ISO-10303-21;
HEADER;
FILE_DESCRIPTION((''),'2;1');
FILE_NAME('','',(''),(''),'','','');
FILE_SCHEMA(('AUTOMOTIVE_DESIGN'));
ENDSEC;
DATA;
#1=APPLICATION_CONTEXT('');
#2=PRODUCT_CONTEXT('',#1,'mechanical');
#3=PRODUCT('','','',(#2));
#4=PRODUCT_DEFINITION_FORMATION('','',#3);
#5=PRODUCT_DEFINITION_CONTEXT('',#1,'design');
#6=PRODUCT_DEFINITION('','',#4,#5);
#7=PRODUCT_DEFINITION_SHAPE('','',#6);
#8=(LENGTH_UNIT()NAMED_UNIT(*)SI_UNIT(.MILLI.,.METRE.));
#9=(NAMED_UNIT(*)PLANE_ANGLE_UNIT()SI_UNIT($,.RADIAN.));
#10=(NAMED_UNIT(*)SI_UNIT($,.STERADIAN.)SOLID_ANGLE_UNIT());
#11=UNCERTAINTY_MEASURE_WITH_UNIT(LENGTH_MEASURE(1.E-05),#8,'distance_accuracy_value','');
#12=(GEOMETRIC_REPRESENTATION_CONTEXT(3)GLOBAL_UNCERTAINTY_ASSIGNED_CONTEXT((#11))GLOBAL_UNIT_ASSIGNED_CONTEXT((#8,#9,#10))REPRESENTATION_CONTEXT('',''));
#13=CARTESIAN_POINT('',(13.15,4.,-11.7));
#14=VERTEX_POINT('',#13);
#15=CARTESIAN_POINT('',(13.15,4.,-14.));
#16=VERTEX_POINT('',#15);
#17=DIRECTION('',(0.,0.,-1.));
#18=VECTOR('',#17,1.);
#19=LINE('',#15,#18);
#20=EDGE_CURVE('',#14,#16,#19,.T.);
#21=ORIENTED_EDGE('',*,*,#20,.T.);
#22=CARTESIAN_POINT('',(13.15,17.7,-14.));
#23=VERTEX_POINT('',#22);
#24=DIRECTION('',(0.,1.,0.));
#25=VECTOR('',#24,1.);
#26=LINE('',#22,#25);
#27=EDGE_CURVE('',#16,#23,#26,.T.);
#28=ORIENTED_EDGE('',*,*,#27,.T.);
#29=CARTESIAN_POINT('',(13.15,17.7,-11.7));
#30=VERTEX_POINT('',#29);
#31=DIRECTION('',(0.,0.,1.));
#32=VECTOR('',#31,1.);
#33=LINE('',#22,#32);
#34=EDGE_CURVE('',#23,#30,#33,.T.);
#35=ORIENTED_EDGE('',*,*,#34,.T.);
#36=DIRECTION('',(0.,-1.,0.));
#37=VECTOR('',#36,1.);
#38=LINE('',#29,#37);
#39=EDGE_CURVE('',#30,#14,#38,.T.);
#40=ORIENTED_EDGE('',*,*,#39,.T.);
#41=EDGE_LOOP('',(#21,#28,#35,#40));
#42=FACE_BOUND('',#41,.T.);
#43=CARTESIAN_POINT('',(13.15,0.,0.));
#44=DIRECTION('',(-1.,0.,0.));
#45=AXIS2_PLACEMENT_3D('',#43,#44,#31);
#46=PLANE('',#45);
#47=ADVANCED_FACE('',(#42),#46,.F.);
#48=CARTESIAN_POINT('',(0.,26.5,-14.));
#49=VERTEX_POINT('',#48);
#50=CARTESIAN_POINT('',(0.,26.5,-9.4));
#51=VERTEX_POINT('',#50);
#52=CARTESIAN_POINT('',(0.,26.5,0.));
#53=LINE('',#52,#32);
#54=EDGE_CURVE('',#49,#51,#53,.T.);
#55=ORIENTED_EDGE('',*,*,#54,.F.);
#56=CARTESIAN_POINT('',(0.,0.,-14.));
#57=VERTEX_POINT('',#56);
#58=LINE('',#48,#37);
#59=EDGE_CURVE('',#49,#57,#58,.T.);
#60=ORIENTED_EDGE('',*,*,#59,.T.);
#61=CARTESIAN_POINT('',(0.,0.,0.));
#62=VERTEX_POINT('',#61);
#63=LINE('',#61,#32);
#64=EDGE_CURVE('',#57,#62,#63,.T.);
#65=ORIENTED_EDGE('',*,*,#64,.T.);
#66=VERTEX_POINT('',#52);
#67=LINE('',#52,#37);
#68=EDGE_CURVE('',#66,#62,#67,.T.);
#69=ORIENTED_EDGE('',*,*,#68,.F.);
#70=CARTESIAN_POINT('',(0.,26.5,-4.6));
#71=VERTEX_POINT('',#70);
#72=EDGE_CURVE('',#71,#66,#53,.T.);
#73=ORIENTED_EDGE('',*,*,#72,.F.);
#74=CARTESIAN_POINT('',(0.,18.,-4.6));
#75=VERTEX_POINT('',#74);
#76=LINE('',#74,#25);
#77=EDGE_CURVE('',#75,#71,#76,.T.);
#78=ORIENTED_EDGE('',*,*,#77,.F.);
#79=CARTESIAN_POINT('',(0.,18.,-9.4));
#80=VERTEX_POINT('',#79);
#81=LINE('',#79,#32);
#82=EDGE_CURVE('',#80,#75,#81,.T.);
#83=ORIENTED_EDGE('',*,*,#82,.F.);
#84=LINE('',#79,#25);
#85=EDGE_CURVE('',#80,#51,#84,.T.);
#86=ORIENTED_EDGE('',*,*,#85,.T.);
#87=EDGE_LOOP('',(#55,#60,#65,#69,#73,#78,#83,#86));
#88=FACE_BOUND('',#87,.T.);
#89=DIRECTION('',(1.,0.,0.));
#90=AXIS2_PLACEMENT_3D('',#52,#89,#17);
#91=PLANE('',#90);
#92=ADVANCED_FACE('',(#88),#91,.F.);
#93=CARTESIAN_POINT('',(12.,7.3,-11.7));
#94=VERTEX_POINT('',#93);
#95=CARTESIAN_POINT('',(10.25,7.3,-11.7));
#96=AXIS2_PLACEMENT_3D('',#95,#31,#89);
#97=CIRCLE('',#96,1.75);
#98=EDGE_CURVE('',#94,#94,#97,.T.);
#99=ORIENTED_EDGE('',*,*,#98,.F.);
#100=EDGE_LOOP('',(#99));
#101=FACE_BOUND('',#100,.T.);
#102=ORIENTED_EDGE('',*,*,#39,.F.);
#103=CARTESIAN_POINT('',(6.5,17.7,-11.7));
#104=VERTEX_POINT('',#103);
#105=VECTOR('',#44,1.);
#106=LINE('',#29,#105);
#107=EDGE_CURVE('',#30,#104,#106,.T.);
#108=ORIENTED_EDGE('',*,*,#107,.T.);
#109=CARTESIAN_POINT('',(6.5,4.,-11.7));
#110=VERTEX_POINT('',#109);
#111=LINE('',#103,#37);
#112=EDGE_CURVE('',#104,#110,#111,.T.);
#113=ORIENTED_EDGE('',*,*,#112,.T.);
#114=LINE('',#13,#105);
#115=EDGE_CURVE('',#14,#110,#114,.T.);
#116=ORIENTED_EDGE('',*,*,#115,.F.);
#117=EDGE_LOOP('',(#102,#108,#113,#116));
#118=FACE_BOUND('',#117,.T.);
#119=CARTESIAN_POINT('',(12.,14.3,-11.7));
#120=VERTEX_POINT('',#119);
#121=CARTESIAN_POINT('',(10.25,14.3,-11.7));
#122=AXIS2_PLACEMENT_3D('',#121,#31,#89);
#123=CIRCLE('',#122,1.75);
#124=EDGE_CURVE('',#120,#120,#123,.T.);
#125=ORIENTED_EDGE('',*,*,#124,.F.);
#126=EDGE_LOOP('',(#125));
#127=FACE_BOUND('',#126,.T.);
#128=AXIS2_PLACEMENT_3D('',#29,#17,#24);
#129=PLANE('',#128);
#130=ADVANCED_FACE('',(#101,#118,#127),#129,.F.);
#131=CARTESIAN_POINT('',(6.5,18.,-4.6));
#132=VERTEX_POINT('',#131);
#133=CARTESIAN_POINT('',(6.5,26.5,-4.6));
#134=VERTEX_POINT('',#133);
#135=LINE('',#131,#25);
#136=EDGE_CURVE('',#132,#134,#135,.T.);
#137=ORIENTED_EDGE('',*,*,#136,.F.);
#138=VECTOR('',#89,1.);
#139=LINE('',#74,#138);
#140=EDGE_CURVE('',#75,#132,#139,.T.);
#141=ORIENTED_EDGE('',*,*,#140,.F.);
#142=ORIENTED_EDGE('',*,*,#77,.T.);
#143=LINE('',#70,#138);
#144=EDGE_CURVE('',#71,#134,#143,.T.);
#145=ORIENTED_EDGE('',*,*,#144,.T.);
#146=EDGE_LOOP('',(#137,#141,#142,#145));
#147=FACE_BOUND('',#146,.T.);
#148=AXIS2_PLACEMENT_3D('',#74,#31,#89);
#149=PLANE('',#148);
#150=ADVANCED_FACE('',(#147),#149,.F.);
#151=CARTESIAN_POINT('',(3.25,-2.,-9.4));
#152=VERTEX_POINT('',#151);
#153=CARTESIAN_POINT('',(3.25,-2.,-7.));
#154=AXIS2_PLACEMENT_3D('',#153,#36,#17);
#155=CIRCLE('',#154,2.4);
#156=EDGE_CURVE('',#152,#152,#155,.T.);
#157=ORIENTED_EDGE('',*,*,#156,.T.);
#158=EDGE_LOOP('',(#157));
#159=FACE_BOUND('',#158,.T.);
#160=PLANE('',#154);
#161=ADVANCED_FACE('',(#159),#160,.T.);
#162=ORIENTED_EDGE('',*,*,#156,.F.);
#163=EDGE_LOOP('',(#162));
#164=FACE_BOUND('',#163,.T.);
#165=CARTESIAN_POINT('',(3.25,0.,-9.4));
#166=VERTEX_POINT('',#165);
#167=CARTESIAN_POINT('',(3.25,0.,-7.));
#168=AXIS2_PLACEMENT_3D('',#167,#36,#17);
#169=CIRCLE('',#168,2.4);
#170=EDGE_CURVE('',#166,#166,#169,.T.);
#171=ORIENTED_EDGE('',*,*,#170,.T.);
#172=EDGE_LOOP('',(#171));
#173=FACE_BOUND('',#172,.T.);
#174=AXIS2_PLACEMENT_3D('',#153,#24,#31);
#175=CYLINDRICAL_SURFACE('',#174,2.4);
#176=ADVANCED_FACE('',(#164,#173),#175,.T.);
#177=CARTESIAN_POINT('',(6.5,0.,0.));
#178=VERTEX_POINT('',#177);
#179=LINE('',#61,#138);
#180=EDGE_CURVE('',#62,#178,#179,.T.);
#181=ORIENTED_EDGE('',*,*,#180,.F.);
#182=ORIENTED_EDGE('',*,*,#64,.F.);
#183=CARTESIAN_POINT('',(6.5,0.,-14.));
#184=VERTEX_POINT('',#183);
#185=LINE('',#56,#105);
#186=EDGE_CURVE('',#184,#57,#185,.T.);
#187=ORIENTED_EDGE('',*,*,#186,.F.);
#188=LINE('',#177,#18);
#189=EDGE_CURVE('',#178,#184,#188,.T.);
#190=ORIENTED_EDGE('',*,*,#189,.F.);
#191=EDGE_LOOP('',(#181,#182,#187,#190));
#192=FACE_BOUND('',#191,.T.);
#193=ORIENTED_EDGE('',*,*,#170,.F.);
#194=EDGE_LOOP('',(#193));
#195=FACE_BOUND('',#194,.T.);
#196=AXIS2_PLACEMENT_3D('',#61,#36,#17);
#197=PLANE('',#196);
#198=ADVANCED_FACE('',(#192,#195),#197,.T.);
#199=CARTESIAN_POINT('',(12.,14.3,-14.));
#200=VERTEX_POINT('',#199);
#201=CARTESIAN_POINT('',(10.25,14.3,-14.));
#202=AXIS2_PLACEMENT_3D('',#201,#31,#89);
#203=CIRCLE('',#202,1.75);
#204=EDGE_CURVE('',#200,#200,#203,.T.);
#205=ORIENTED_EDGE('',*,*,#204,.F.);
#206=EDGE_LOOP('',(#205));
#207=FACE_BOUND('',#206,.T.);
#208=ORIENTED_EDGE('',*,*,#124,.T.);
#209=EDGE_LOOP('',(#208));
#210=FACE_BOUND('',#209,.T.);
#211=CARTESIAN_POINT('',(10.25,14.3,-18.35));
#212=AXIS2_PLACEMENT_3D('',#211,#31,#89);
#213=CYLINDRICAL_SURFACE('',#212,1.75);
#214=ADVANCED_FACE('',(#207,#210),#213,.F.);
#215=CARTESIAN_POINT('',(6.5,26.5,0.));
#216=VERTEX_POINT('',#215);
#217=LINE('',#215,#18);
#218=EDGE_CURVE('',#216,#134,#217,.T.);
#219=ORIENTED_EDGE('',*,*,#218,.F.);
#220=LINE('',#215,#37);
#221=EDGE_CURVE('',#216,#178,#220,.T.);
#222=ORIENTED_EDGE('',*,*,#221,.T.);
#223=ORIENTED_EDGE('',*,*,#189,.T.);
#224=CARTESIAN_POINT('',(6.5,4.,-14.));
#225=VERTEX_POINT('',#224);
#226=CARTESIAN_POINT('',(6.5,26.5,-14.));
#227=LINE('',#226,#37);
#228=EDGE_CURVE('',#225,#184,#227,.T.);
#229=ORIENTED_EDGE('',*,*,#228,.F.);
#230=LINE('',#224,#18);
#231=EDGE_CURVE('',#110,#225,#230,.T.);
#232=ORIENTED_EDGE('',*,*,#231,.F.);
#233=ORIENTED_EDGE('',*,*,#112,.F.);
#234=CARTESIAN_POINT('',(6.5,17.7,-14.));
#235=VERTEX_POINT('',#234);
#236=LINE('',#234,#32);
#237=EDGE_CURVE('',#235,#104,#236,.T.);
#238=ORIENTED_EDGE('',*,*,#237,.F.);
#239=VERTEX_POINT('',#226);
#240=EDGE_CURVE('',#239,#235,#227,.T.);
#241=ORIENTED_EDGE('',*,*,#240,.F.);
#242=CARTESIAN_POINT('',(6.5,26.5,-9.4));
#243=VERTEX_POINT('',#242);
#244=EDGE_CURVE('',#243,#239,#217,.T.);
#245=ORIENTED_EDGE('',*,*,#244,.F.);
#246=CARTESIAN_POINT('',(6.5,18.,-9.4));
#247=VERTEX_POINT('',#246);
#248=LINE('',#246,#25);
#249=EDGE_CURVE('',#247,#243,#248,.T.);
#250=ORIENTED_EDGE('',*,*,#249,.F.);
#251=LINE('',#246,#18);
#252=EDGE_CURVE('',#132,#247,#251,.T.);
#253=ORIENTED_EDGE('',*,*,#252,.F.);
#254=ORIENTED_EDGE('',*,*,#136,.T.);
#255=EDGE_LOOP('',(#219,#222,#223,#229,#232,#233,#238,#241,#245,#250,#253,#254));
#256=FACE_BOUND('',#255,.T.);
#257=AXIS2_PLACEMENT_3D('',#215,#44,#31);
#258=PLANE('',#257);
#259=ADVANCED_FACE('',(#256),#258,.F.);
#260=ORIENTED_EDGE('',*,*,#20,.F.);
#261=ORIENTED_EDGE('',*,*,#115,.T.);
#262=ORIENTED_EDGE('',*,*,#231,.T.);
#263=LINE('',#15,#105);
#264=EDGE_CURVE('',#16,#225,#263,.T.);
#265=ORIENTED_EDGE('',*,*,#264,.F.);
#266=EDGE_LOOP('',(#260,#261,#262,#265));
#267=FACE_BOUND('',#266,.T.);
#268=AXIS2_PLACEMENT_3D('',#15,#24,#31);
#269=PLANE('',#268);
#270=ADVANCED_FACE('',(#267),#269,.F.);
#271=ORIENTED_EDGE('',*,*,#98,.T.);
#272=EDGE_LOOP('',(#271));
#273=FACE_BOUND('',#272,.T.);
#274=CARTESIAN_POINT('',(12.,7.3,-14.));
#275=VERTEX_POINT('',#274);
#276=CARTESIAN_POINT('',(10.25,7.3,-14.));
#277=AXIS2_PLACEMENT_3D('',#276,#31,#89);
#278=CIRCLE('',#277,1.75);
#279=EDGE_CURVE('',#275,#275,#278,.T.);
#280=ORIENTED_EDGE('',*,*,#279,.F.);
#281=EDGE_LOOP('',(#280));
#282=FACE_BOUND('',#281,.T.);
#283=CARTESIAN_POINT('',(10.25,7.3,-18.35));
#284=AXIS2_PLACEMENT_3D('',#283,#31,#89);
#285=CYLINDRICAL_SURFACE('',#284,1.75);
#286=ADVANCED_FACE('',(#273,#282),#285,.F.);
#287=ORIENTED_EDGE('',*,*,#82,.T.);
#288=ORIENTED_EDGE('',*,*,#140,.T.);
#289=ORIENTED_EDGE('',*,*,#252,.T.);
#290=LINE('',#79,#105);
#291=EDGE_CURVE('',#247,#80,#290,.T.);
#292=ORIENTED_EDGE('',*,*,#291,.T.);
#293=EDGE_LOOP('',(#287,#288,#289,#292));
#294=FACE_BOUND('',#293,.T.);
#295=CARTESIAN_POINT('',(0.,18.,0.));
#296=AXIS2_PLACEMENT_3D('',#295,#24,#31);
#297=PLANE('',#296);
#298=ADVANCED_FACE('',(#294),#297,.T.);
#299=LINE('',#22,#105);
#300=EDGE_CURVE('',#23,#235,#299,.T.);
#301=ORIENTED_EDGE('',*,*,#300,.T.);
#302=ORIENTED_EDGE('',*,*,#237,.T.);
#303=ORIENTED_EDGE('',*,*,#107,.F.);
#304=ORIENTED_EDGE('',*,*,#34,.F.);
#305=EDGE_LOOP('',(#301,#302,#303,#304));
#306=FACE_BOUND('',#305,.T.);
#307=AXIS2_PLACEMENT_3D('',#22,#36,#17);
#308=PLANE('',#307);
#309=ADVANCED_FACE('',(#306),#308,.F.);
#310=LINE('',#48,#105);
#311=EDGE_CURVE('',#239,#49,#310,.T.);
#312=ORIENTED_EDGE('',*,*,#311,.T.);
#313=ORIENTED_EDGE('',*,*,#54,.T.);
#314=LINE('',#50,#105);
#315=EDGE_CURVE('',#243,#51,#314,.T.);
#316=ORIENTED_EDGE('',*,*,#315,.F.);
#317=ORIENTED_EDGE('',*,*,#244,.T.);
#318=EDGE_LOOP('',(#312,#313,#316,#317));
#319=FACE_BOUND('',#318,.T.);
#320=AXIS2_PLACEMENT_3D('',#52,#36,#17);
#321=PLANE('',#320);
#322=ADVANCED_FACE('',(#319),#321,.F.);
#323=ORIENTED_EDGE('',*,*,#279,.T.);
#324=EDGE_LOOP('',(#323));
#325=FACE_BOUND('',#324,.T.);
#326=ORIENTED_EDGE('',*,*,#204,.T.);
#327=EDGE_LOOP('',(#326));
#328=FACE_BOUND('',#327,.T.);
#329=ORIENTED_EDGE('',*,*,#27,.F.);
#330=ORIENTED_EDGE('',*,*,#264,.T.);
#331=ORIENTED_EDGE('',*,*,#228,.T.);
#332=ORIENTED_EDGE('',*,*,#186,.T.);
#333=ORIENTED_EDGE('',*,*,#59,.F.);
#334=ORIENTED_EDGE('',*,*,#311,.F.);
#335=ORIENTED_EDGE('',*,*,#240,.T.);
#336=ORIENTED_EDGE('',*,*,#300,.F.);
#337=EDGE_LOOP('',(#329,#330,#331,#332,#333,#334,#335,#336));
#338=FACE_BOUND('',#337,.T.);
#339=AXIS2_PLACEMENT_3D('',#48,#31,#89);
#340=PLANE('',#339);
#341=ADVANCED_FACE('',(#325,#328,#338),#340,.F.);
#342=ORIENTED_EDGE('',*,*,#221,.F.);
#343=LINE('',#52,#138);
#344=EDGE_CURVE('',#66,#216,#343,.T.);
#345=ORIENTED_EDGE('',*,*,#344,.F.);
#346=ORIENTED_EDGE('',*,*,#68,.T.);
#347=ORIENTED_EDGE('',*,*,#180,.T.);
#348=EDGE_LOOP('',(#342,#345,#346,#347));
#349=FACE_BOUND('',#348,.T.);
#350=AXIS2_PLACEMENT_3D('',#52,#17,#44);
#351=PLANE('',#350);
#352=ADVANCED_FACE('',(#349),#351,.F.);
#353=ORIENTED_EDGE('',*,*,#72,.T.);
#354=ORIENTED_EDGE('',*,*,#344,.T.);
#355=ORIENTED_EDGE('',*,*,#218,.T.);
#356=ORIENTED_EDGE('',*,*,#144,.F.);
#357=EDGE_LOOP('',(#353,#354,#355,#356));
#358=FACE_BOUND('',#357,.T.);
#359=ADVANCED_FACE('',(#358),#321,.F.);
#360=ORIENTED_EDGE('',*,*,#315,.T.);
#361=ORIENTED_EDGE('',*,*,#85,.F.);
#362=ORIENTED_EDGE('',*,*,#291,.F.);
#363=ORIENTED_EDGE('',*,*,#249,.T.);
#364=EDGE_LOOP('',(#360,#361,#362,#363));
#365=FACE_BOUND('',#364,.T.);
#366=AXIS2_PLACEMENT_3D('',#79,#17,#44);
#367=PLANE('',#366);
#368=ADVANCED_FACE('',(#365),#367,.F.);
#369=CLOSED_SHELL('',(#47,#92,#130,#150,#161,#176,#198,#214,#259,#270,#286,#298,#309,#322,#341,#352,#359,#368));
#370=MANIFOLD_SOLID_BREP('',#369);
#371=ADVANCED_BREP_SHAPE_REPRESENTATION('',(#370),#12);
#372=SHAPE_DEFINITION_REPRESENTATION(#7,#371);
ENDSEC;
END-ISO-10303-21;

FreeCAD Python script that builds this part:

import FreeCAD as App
import Part
import Sketcher

V = App.Vector

doc = App.newDocument("Part")
body = doc.addObject("PartDesign::Body", "Body")

# Sketch on XZ plane
sketch1 = body.newObject("Sketcher::SketchObject", "Sketch")
sketch1.AttachmentSupport = (doc.getObject("XZ_Plane"), [""])
sketch1.MapMode = "FlatFace"
sketch1.addGeometry(Part.LineSegment(V(0, -14, 0), V(0, 0, 0)), False)
sketch1.addGeometry(Part.LineSegment(V(0, 0, 0), V(6, 0, 0)), False)
sketch1.addGeometry(Part.LineSegment(V(6, 0, 0), V(6, -14, 0)), False)
sketch1.addGeometry(Part.LineSegment(V(6, -14, 0), V(0, -14, 0)), False)
sketch1.addConstraint(Sketcher.Constraint("Coincident", 0, 2, 1, 1))
sketch1.addConstraint(Sketcher.Constraint("Coincident", 1, 2, 2, 1))
sketch1.addConstraint(Sketcher.Constraint("Coincident", 2, 2, 3, 1))
sketch1.addConstraint(Sketcher.Constraint("Coincident", 3, 2, 0, 1))
sketch1.addConstraint(Sketcher.Constraint("Vertical", 0))
sketch1.addConstraint(Sketcher.Constraint("Horizontal", 1))
sketch1.addConstraint(Sketcher.Constraint("Vertical", 2))
sketch1.addConstraint(Sketcher.Constraint("Horizontal", 3))
sketch1.addConstraint(Sketcher.Constraint("Coincident", 0, 2, -1, 1))
sketch1.addConstraint(Sketcher.Constraint("DistanceY", 0, 1, 0, 2, 14.0))
sketch1.addConstraint(Sketcher.Constraint("DistanceX", 1, 1, 1, 2, 6.5))
pad1 = body.newObject("PartDesign::Pad", "Pad")
pad1.Profile = sketch1
pad1.Length = 26.5
pad1.Reversed = True

# Sketch on XZ plane
sketch2 = body.newObject("Sketcher::SketchObject", "Sketch001")
sketch2.AttachmentSupport = (doc.getObject("XZ_Plane"), [""])
sketch2.MapMode = "FlatFace"
sketch2.AttachmentOffset = App.Placement(V(0, 0, -26.5), App.Rotation())
sketch2.addGeometry(Part.LineSegment(V(0, -9.4, 0), V(0, -4.6, 0)), False)
sketch2.addGeometry(Part.LineSegment(V(0, -4.6, 0), V(6.5, -4.6, 0)), False)
sketch2.addGeometry(Part.LineSegment(V(6.5, -4.6, 0), V(6.5, -9.4, 0)), False)
sketch2.addGeometry(Part.LineSegment(V(6.5, -9.4, 0), V(0, -9.4, 0)), False)
sketch2.addConstraint(Sketcher.Constraint("Coincident", 0, 2, 1, 1))
sketch2.addConstraint(Sketcher.Constraint("Coincident", 1, 2, 2, 1))
sketch2.addConstraint(Sketcher.Constraint("Coincident", 2, 2, 3, 1))
sketch2.addConstraint(Sketcher.Constraint("Coincident", 3, 2, 0, 1))
sketch2.addConstraint(Sketcher.Constraint("Vertical", 0))
sketch2.addConstraint(Sketcher.Constraint("Horizontal", 1))
sketch2.addConstraint(Sketcher.Constraint("Vertical", 2))
sketch2.addConstraint(Sketcher.Constraint("Horizontal", 3))
sketch2.addConstraint(Sketcher.Constraint("PointOnObject", 0, 2, -2))
sketch2.addConstraint(Sketcher.Constraint("DistanceX", 1, 1, 1, 2, 6.5))
sketch2.addConstraint(Sketcher.Constraint("DistanceY", 0, 1, 0, 2, 4.8))
sketch2.addConstraint(Sketcher.Constraint("DistanceY", 0, 2, -1, 1, 4.6))
pocket1 = body.newObject("PartDesign::Pocket", "Pocket")
pocket1.Profile = sketch2
pocket1.Length = 8.5
pocket1.Reversed = True

# Sketch on YZ plane
sketch3 = body.newObject("Sketcher::SketchObject", "Sketch002")
sketch3.AttachmentSupport = (doc.getObject("YZ_Plane"), [""])
sketch3.MapMode = "FlatFace"
sketch3.AttachmentOffset = App.Placement(V(0, 0, 6.5), App.Rotation())
sketch3.addGeometry(Part.LineSegment(V(17.7, -11.7, 0), V(4, -11.7, 0)), False)
sketch3.addGeometry(Part.LineSegment(V(4, -11.7, 0), V(4, -14, 0)), False)
sketch3.addGeometry(Part.LineSegment(V(4, -14, 0), V(17.7, -14, 0)), False)
sketch3.addGeometry(Part.LineSegment(V(17.7, -14, 0), V(17.7, -11.7, 0)), False)
sketch3.addConstraint(Sketcher.Constraint("Coincident", 0, 2, 1, 1))
sketch3.addConstraint(Sketcher.Constraint("Coincident", 1, 2, 2, 1))
sketch3.addConstraint(Sketcher.Constraint("Coincident", 2, 2, 3, 1))
sketch3.addConstraint(Sketcher.Constraint("Coincident", 3, 2, 0, 1))
sketch3.addConstraint(Sketcher.Constraint("Horizontal", 0))
sketch3.addConstraint(Sketcher.Constraint("Vertical", 1))
sketch3.addConstraint(Sketcher.Constraint("Horizontal", 2))
sketch3.addConstraint(Sketcher.Constraint("Vertical", 3))
sketch3.addConstraint(Sketcher.Constraint("DistanceX", 0, 2, 0, 1, 13.7))
sketch3.addConstraint(Sketcher.Constraint("DistanceY", 1, 2, 1, 1, 2.3))
sketch3.addConstraint(Sketcher.Constraint("DistanceX", -1, 1, 0, 2, 4.0))
sketch3.addConstraint(Sketcher.Constraint("DistanceY", 1, 2, -1, 1, 14.0))
pad2 = body.newObject("PartDesign::Pad", "Pad001")
pad2.Profile = sketch3
pad2.Length = 6.65

# Sketch on XY plane
sketch4 = body.newObject("Sketcher::SketchObject", "Sketch003")
sketch4.AttachmentSupport = (doc.getObject("XY_Plane"), [""])
sketch4.MapMode = "FlatFace"
sketch4.AttachmentOffset = App.Placement(V(0, 0, -11.7), App.Rotation())
sketch4.addGeometry(Part.Circle(V(10.2, 14.3, 0), V(0, 0, 1), 1.8), False)
sketch4.addGeometry(Part.Circle(V(10.2, 7.3, 0), V(0, 0, 1), 1.8), False)
sketch4.addConstraint(Sketcher.Constraint("Equal", 0, 1))
sketch4.addConstraint(Sketcher.Constraint("Vertical", 0, 3, 1, 3))
sketch4.addConstraint(Sketcher.Constraint("Diameter", 0, 3.5))
sketch4.addConstraint(Sketcher.Constraint("DistanceY", 1, 3, 0, 3, 7.0))
sketch4.addConstraint(Sketcher.Constraint("DistanceY", -1, 1, 0, 3, 14.3))
sketch4.addConstraint(Sketcher.Constraint("DistanceX", -1, 1, 0, 3, 10.25))
pocket2 = body.newObject("PartDesign::Pocket", "Pocket001")
pocket2.Profile = sketch4
pocket2.Length = 6.65

# Sketch on XZ plane
sketch5 = body.newObject("Sketcher::SketchObject", "Sketch004")
sketch5.AttachmentSupport = (doc.getObject("XZ_Plane"), [""])
sketch5.MapMode = "FlatFace"
sketch5.addGeometry(Part.Circle(V(3.2, -7, 0), V(0, 0, 1), 2.4), False)
sketch5.addConstraint(Sketcher.Constraint("Diameter", 0, 4.8))
sketch5.addConstraint(Sketcher.Constraint("DistanceY", 0, 3, -1, 1, 7.0))
sketch5.addConstraint(Sketcher.Constraint("DistanceX", -1, 1, 0, 3, 3.25))
pad3 = body.newObject("PartDesign::Pad", "Pad002")
pad3.Profile = sketch5
pad3.Length = 2

doc.recompute()
